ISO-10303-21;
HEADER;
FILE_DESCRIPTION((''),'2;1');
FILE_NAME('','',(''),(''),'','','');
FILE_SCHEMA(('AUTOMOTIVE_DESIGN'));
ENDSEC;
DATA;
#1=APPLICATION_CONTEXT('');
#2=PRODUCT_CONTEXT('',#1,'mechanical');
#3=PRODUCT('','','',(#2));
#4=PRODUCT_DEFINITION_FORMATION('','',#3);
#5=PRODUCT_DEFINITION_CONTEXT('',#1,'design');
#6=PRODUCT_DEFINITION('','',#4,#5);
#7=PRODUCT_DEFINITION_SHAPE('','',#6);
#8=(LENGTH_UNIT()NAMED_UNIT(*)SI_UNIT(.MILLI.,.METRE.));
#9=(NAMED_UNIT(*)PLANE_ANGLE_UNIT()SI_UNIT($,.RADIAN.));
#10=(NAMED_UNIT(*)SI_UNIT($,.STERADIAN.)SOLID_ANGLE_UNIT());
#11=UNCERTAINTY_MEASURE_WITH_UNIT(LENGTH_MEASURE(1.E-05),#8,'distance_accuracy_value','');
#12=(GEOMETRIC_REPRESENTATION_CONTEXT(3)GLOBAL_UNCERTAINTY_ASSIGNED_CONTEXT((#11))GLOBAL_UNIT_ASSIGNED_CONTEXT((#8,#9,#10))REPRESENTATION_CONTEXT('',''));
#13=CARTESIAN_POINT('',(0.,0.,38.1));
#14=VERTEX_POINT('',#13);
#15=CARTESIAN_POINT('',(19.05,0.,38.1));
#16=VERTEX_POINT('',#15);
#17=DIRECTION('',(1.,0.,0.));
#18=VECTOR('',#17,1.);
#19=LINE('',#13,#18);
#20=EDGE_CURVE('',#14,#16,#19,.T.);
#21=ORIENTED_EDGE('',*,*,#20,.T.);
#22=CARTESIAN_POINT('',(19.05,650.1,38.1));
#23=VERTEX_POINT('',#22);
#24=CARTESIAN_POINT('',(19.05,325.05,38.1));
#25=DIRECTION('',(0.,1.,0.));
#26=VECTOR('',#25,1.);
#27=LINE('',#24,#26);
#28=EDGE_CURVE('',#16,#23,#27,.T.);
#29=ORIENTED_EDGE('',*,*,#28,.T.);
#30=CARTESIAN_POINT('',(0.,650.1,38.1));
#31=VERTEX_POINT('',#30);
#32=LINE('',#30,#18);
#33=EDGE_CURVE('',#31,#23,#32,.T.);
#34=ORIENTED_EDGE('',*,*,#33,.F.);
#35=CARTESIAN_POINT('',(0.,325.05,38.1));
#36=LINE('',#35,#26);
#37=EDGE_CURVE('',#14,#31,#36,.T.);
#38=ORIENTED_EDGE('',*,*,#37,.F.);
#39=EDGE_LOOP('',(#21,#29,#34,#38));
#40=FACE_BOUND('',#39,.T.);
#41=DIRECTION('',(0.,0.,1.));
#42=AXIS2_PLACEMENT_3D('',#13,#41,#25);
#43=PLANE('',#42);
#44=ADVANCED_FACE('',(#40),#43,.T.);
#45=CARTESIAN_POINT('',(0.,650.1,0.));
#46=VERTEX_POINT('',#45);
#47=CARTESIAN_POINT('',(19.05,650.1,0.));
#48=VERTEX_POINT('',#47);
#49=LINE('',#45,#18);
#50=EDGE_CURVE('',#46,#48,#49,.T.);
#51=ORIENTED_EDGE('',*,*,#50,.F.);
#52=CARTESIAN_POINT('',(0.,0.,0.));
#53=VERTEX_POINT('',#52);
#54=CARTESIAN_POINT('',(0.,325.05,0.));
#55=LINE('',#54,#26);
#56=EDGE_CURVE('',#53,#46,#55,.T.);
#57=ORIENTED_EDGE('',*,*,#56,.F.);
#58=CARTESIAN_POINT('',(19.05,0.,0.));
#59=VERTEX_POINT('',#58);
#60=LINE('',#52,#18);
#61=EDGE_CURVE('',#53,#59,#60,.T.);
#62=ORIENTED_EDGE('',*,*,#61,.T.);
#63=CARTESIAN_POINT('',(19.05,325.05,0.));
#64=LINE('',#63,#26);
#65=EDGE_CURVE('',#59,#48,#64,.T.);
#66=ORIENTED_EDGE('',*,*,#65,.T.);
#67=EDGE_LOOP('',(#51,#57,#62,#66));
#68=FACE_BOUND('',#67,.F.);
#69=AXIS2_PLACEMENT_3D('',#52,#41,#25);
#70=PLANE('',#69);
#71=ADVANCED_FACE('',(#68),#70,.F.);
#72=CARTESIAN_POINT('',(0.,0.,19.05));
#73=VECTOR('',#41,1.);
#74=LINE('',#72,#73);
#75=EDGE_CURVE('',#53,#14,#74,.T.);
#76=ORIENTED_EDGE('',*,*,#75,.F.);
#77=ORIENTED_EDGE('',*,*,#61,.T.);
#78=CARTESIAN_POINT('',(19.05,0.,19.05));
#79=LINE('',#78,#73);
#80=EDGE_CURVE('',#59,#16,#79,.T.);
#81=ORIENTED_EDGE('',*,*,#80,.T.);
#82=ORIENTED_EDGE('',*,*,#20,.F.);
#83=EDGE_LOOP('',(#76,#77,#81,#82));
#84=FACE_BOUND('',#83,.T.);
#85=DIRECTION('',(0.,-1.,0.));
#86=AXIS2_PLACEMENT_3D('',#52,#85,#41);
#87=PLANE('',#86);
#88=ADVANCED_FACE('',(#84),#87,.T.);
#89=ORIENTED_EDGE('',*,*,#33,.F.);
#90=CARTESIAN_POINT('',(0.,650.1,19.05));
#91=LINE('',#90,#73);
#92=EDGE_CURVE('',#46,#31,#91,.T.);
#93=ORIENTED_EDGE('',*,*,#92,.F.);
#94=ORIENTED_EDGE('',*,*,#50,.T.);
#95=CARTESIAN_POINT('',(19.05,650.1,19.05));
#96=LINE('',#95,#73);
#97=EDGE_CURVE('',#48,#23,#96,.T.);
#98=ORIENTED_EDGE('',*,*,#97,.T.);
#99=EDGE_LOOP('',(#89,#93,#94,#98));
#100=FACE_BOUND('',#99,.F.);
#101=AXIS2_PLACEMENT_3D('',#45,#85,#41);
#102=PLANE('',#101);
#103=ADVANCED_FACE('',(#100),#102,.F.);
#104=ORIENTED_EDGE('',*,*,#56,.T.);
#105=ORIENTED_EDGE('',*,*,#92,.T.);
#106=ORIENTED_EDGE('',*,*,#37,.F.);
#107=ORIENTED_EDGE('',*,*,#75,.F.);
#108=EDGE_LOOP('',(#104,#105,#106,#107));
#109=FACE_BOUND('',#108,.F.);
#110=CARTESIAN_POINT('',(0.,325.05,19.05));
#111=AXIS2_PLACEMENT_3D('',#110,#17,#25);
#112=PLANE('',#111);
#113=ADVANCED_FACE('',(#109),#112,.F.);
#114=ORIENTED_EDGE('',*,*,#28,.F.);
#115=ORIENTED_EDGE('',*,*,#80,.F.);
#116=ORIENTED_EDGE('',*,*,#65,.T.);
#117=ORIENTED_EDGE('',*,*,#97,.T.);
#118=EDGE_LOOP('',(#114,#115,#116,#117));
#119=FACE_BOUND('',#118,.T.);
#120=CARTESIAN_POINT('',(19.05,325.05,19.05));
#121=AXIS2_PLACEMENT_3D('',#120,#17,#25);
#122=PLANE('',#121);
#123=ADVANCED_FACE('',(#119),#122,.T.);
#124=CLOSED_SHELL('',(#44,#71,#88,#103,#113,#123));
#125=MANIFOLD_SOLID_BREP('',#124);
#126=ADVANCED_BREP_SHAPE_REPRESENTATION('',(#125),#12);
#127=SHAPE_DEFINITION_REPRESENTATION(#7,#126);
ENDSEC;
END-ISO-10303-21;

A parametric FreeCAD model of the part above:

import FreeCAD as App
import Part
import Sketcher
Q = App.Units.Quantity


def add_polygon(sketch, points):
    """Adds a closed chain of lines whose ends are joined by coincident constraints."""
    first, n = sketch.GeometryCount, len(points)
    for a, b in zip(points, points[1:] + points[:1]):
        sketch.addGeometry(Part.LineSegment(App.Vector(*a, 0), App.Vector(*b, 0)), False)
    for i in range(n):
        sketch.addConstraint(Sketcher.Constraint("Coincident", first + i, 2, first + (i + 1) % n, 1))

doc = App.newDocument("Part")
params = doc.addObject("Spreadsheet::Sheet", "Params")
for row, (alias, value) in enumerate([
    ("sketch1_height", "1.5 in"),
    ("pad1_length", "0.75 in"),
], start=1):
    params.set(f"A{row}", alias)
    params.set(f"B{row}", "=" + value)
    params.setAlias(f"B{row}", alias)

body = doc.addObject("PartDesign::Body", "Body")

# Sketch on YZ plane
sketch1 = body.newObject("Sketcher::SketchObject", "Sketch")
sketch1.AttachmentSupport = (doc.getObject("YZ_Plane"), [""])
sketch1.MapMode = "FlatFace"
add_polygon(sketch1, [(0, 38.1), (0, 0), (650.1, 0), (650.1, 38.1)])  # lines 0-3
sketch1.addConstraint(Sketcher.Constraint("Vertical", 0))
sketch1.addConstraint(Sketcher.Constraint("Horizontal", 1))
sketch1.addConstraint(Sketcher.Constraint("Vertical", 2))
sketch1.addConstraint(Sketcher.Constraint("Horizontal", 3))
sketch1.addConstraint(Sketcher.Constraint("Coincident", 0, 2, -1, 1))
sketch1.addConstraint(Sketcher.Constraint("DistanceY", 0, 2, 0, 1, Q("1.5 in")))
sketch1.addConstraint(Sketcher.Constraint("DistanceX", 1, 1, 1, 2, 650.1))
sketch1.setExpression("Constraints[9]", "Params.sketch1_height")
pad1 = body.newObject("PartDesign::Pad", "Pad")
pad1.Profile = sketch1
pad1.setExpression("Length", "Params.pad1_length")

doc.recompute()
